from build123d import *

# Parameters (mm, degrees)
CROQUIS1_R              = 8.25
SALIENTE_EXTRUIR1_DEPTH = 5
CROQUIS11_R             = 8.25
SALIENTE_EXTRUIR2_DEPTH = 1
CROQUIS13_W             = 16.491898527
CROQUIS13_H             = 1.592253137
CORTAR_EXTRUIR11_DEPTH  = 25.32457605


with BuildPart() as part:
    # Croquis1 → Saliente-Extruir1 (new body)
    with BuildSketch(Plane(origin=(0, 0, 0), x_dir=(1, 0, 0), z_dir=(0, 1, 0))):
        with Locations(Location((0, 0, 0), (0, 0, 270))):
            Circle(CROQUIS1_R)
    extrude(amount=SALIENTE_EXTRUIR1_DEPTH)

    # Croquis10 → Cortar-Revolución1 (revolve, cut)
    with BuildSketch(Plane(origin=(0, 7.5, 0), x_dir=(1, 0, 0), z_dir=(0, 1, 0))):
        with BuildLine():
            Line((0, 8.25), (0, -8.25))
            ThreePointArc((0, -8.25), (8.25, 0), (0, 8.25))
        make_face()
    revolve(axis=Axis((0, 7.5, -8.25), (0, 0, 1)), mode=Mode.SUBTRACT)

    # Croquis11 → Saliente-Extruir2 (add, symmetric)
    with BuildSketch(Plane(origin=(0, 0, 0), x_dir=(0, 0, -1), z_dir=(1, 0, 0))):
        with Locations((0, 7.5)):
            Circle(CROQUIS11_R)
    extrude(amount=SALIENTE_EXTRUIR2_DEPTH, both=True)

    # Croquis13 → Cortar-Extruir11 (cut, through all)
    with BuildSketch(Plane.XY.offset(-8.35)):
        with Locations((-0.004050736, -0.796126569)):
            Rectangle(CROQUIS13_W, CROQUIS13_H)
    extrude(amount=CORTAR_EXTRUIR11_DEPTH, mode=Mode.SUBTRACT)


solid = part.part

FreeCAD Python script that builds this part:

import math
import FreeCAD as App
import Part
import Sketcher


def add_polygon(sketch, points):
    """Adds a closed chain of lines whose ends are joined by coincident constraints."""
    first, n = sketch.GeometryCount, len(points)
    for a, b in zip(points, points[1:] + points[:1]):
        sketch.addGeometry(Part.LineSegment(App.Vector(*a, 0), App.Vector(*b, 0)), False)
    for i in range(n):
        sketch.addConstraint(Sketcher.Constraint("Coincident", first + i, 2, first + (i + 1) % n, 1))

doc = App.newDocument("Part")
body = doc.addObject("PartDesign::Body", "Body")

sketch1 = doc.addObject("Sketcher::SketchObject", "Sketch")
body.addObject(sketch1)
sketch1.AttachmentSupport = (doc.XZ_Plane, [""])
sketch1.MapMode = "FlatFace"
sketch1.addGeometry(Part.Circle(App.Vector(0, 0, 0), App.Vector(0, 0, 1), 8), False)
sketch1.addConstraint(Sketcher.Constraint("Coincident", 0, 3, -1, 1))
sketch1.addConstraint(Sketcher.Constraint("Diameter", 0, 16.5))
pad1 = doc.addObject("PartDesign::Pad", "Pad")
body.addObject(pad1)
pad1.Profile = sketch1
pad1.Length = 5
pad1.Reversed = True

sketch2 = doc.addObject("Sketcher::SketchObject", "Sketch001")
body.addObject(sketch2)
sketch2.AttachmentSupport = (doc.XZ_Plane, [""])
sketch2.MapMode = "FlatFace"
sketch2.AttachmentOffset = App.Placement(App.Vector(0, 0, -7.5), App.Rotation())
sketch2.addGeometry(Part.LineSegment(App.Vector(0, -8, 0), App.Vector(0, 8, 0)), False)
sketch2.addGeometry(Part.ArcOfCircle(Part.Circle(App.Vector(0, 0, 0), App.Vector(0, 0, 1), 8), math.radians(-90), math.radians(90)), False)
sketch2.addConstraint(Sketcher.Constraint("Coincident", 0, 1, 1, 1))
sketch2.addConstraint(Sketcher.Constraint("Coincident", 1, 2, 0, 2))
sketch2.addConstraint(Sketcher.Constraint("Vertical", 0))
sketch2.addConstraint(Sketcher.Constraint("Coincident", 1, 3, -1, 1))
sketch2.addConstraint(Sketcher.Constraint("PointOnObject", 0, 1, -2))
sketch2.addConstraint(Sketcher.Constraint("Radius", 1, 8.25))
groove = doc.addObject("PartDesign::Groove", "Groove")
body.addObject(groove)
groove.Profile = sketch2
groove.ReferenceAxis = (sketch2, ["V_Axis"])
groove.Angle = 360

sketch3 = doc.addObject("Sketcher::SketchObject", "Sketch002")
body.addObject(sketch3)
sketch3.AttachmentSupport = (doc.YZ_Plane, [""])
sketch3.MapMode = "FlatFace"
sketch3.addGeometry(Part.Circle(App.Vector(8, 0, 0), App.Vector(0, 0, 1), 8), False)
sketch3.addConstraint(Sketcher.Constraint("PointOnObject", 0, 3, -1))
sketch3.addConstraint(Sketcher.Constraint("Diameter", 0, 16.5))
sketch3.addConstraint(Sketcher.Constraint("DistanceX", -1, 1, 0, 3, 7.5))
pad2 = doc.addObject("PartDesign::Pad", "Pad001")
body.addObject(pad2)
pad2.Profile = sketch3
pad2.Length = 2
pad2.Midplane = True

sketch4 = doc.addObject("Sketcher::SketchObject", "Sketch003")
body.addObject(sketch4)
sketch4.AttachmentSupport = (doc.XY_Plane, [""])
sketch4.MapMode = "FlatFace"
sketch4.AttachmentOffset = App.Placement(App.Vector(0, 0, -8.35), App.Rotation())
add_polygon(sketch4, [(-8.2, 0), (-8.2, -1.6), (8.2, -1.6), (8.2, 0)])
sketch4.addConstraint(Sketcher.Constraint("Vertical", 0))
sketch4.addConstraint(Sketcher.Constraint("Horizontal", 1))
sketch4.addConstraint(Sketcher.Constraint("Vertical", 2))
sketch4.addConstraint(Sketcher.Constraint("Horizontal", 3))
sketch4.addConstraint(Sketcher.Constraint("PointOnObject", 2, 2, -1))
sketch4.addConstraint(Sketcher.Constraint("DistanceX", 0, 2, -1, 1, 8.25))
sketch4.addConstraint(Sketcher.Constraint("DistanceX", 1, 1, 1, 2, 16.491899))
sketch4.addConstraint(Sketcher.Constraint("DistanceY", 0, 2, 0, 1, 1.592253))
pocket1 = doc.addObject("PartDesign::Pocket", "Pocket")
body.addObject(pocket1)
pocket1.Profile = sketch4
pocket1.Type = "ThroughAll"
pocket1.Reversed = True

doc.recompute()
